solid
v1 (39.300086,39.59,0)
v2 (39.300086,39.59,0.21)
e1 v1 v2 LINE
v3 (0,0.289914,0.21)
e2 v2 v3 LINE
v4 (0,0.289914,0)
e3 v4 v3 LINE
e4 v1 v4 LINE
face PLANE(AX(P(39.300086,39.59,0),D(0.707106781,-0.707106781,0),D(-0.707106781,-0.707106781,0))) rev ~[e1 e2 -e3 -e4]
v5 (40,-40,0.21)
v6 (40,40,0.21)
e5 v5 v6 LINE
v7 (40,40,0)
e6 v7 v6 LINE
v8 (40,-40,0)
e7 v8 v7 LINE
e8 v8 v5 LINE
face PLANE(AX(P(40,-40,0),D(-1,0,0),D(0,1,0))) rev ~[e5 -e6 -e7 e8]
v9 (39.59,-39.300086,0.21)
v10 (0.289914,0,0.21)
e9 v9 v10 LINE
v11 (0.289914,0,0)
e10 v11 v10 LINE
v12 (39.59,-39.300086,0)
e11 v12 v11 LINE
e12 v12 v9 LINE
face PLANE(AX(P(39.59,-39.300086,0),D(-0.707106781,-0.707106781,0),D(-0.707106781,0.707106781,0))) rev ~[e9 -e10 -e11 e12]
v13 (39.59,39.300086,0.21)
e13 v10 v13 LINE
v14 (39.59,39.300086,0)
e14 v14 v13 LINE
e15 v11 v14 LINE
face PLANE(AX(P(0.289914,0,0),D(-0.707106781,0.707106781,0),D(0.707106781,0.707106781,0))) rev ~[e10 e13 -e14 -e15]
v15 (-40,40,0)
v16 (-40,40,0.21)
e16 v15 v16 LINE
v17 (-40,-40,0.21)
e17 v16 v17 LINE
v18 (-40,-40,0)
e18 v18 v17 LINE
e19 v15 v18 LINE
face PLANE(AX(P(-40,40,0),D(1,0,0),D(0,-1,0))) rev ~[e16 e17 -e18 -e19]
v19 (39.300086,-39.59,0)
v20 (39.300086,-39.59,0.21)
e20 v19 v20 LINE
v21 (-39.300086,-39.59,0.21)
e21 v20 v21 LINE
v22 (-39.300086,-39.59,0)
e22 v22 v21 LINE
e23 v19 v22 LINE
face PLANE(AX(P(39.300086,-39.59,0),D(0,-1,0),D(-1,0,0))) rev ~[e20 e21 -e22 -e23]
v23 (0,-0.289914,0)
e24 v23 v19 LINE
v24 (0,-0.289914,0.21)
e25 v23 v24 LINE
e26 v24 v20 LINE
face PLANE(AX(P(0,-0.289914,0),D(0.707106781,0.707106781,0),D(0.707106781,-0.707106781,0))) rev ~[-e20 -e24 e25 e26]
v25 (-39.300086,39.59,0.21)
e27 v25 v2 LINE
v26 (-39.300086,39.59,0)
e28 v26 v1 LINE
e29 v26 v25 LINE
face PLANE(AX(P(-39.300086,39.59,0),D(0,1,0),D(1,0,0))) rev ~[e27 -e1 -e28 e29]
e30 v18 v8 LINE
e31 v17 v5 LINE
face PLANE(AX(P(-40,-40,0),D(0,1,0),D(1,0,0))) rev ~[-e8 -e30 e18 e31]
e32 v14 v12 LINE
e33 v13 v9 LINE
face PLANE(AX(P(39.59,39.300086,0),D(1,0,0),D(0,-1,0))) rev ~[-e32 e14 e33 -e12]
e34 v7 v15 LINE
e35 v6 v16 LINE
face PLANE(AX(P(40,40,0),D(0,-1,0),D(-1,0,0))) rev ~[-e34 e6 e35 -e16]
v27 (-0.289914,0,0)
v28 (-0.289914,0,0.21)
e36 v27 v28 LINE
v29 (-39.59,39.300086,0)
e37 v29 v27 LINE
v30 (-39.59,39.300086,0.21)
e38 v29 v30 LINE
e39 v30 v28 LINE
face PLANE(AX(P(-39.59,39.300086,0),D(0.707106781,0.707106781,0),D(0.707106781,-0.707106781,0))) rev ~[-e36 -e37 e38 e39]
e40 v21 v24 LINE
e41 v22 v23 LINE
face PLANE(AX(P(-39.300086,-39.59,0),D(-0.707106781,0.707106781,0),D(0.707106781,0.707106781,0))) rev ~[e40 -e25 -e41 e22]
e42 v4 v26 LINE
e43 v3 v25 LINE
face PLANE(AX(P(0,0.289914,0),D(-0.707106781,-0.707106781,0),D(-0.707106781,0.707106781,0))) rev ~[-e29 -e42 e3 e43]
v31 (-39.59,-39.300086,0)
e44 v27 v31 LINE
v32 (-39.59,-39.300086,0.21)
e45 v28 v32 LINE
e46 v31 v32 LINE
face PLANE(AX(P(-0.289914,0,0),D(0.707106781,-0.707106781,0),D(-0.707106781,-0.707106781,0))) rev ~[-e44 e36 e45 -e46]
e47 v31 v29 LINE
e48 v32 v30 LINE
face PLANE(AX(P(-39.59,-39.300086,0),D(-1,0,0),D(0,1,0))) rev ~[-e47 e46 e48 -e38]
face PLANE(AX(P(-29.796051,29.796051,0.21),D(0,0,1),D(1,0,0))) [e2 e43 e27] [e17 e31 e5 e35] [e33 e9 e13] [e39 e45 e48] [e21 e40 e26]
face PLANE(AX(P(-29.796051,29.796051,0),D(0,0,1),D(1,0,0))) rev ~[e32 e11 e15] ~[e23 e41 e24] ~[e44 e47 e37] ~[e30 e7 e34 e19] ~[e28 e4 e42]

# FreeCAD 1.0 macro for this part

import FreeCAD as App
import Part
import Sketcher


def add_polygon(sketch, points):
    """Adds a closed chain of lines whose ends are joined by coincident constraints."""
    first, n = sketch.GeometryCount, len(points)
    for a, b in zip(points, points[1:] + points[:1]):
        sketch.addGeometry(Part.LineSegment(App.Vector(*a, 0), App.Vector(*b, 0)), False)
    for i in range(n):
        sketch.addConstraint(Sketcher.Constraint("Coincident", first + i, 2, first + (i + 1) % n, 1))

doc = App.newDocument("Part")
body = doc.addObject("PartDesign::Body", "Body")

sketch1 = body.newObject("Sketcher::SketchObject", "Sketch")
sketch1.AttachmentSupport = (doc.getObject("XY_Plane"), [""])
sketch1.MapMode = "FlatFace"
add_polygon(sketch1, [(-40, 40), (-40, -40), (40, -40), (40, 40)])
add_polygon(sketch1, [(0.289914, 0), (39.59, 39.300086), (39.59, -39.300086)])
add_polygon(sketch1, [(39.300086, -39.59), (-39.300086, -39.59), (0, -0.289914)])
add_polygon(sketch1, [(-39.59, -39.300086), (-39.59, 39.300086), (-0.289914, 0)])
add_polygon(sketch1, [(39.300086, 39.59), (0, 0.289914), (-39.300086, 39.59)])
sketch1.addConstraint(Sketcher.Constraint("Vertical", 0))
sketch1.addConstraint(Sketcher.Constraint("Horizontal", 1))
sketch1.addConstraint(Sketcher.Constraint("Vertical", 2))
sketch1.addConstraint(Sketcher.Constraint("Horizontal", 3))
sketch1.addConstraint(Sketcher.Constraint("Vertical", 5))
sketch1.addConstraint(Sketcher.Constraint("Horizontal", 7))
sketch1.addConstraint(Sketcher.Constraint("Vertical", 10))
sketch1.addConstraint(Sketcher.Constraint("Horizontal", 15))
sketch1.addConstraint(Sketcher.Constraint("Symmetric", 0, 2, 2, 2, -1, 1))
sketch1.addConstraint(Sketcher.Constraint("Symmetric", 5, 2, 10, 2, -1, 1))
sketch1.addConstraint(Sketcher.Constraint("Symmetric", 6, 2, 11, 2, -1, 1))
sketch1.addConstraint(Sketcher.Constraint("Symmetric", 8, 2, 13, 2, -1, 1))
sketch1.addConstraint(Sketcher.Constraint("Symmetric", 9, 2, 14, 2, -1, 1))
sketch1.addConstraint(Sketcher.Constraint("PointOnObject", 6, 2, -1))
sketch1.addConstraint(Sketcher.Constraint("PointOnObject", 8, 2, -2))
sketch1.addConstraint(Sketcher.Constraint("Perpendicular", 4, 6))
sketch1.addConstraint(Sketcher.Constraint("Perpendicular", 6, 8))
sketch1.addConstraint(Sketcher.Constraint("Perpendicular", 8, 9))
sketch1.addConstraint(Sketcher.Constraint("Perpendicular", 11, 12))
sketch1.addConstraint(Sketcher.Constraint("Parallel", 12, 13))
sketch1.addConstraint(Sketcher.Constraint("Horizontal", 4, 2, 10, 2))
sketch1.addConstraint(Sketcher.Constraint("Equal", 3, 0))
sketch1.addConstraint(Sketcher.Constraint("Equal", 15, 5))
sketch1.addConstraint(Sketcher.Constraint("DistanceX", 1, 1, 1, 2, 80.0))
sketch1.addConstraint(Sketcher.Constraint("DistanceX", -1, 1, 4, 2, 39.59))
sketch1.addConstraint(Sketcher.Constraint("DistanceY", 7, 2, -1, 1, 39.59))
sketch1.addConstraint(Sketcher.Constraint("DistanceX", 7, 2, 7, 1, 78.600172))
pad1 = body.newObject("PartDesign::Pad", "Pad")
pad1.Profile = sketch1
pad1.Length = 0.21

doc.recompute()
